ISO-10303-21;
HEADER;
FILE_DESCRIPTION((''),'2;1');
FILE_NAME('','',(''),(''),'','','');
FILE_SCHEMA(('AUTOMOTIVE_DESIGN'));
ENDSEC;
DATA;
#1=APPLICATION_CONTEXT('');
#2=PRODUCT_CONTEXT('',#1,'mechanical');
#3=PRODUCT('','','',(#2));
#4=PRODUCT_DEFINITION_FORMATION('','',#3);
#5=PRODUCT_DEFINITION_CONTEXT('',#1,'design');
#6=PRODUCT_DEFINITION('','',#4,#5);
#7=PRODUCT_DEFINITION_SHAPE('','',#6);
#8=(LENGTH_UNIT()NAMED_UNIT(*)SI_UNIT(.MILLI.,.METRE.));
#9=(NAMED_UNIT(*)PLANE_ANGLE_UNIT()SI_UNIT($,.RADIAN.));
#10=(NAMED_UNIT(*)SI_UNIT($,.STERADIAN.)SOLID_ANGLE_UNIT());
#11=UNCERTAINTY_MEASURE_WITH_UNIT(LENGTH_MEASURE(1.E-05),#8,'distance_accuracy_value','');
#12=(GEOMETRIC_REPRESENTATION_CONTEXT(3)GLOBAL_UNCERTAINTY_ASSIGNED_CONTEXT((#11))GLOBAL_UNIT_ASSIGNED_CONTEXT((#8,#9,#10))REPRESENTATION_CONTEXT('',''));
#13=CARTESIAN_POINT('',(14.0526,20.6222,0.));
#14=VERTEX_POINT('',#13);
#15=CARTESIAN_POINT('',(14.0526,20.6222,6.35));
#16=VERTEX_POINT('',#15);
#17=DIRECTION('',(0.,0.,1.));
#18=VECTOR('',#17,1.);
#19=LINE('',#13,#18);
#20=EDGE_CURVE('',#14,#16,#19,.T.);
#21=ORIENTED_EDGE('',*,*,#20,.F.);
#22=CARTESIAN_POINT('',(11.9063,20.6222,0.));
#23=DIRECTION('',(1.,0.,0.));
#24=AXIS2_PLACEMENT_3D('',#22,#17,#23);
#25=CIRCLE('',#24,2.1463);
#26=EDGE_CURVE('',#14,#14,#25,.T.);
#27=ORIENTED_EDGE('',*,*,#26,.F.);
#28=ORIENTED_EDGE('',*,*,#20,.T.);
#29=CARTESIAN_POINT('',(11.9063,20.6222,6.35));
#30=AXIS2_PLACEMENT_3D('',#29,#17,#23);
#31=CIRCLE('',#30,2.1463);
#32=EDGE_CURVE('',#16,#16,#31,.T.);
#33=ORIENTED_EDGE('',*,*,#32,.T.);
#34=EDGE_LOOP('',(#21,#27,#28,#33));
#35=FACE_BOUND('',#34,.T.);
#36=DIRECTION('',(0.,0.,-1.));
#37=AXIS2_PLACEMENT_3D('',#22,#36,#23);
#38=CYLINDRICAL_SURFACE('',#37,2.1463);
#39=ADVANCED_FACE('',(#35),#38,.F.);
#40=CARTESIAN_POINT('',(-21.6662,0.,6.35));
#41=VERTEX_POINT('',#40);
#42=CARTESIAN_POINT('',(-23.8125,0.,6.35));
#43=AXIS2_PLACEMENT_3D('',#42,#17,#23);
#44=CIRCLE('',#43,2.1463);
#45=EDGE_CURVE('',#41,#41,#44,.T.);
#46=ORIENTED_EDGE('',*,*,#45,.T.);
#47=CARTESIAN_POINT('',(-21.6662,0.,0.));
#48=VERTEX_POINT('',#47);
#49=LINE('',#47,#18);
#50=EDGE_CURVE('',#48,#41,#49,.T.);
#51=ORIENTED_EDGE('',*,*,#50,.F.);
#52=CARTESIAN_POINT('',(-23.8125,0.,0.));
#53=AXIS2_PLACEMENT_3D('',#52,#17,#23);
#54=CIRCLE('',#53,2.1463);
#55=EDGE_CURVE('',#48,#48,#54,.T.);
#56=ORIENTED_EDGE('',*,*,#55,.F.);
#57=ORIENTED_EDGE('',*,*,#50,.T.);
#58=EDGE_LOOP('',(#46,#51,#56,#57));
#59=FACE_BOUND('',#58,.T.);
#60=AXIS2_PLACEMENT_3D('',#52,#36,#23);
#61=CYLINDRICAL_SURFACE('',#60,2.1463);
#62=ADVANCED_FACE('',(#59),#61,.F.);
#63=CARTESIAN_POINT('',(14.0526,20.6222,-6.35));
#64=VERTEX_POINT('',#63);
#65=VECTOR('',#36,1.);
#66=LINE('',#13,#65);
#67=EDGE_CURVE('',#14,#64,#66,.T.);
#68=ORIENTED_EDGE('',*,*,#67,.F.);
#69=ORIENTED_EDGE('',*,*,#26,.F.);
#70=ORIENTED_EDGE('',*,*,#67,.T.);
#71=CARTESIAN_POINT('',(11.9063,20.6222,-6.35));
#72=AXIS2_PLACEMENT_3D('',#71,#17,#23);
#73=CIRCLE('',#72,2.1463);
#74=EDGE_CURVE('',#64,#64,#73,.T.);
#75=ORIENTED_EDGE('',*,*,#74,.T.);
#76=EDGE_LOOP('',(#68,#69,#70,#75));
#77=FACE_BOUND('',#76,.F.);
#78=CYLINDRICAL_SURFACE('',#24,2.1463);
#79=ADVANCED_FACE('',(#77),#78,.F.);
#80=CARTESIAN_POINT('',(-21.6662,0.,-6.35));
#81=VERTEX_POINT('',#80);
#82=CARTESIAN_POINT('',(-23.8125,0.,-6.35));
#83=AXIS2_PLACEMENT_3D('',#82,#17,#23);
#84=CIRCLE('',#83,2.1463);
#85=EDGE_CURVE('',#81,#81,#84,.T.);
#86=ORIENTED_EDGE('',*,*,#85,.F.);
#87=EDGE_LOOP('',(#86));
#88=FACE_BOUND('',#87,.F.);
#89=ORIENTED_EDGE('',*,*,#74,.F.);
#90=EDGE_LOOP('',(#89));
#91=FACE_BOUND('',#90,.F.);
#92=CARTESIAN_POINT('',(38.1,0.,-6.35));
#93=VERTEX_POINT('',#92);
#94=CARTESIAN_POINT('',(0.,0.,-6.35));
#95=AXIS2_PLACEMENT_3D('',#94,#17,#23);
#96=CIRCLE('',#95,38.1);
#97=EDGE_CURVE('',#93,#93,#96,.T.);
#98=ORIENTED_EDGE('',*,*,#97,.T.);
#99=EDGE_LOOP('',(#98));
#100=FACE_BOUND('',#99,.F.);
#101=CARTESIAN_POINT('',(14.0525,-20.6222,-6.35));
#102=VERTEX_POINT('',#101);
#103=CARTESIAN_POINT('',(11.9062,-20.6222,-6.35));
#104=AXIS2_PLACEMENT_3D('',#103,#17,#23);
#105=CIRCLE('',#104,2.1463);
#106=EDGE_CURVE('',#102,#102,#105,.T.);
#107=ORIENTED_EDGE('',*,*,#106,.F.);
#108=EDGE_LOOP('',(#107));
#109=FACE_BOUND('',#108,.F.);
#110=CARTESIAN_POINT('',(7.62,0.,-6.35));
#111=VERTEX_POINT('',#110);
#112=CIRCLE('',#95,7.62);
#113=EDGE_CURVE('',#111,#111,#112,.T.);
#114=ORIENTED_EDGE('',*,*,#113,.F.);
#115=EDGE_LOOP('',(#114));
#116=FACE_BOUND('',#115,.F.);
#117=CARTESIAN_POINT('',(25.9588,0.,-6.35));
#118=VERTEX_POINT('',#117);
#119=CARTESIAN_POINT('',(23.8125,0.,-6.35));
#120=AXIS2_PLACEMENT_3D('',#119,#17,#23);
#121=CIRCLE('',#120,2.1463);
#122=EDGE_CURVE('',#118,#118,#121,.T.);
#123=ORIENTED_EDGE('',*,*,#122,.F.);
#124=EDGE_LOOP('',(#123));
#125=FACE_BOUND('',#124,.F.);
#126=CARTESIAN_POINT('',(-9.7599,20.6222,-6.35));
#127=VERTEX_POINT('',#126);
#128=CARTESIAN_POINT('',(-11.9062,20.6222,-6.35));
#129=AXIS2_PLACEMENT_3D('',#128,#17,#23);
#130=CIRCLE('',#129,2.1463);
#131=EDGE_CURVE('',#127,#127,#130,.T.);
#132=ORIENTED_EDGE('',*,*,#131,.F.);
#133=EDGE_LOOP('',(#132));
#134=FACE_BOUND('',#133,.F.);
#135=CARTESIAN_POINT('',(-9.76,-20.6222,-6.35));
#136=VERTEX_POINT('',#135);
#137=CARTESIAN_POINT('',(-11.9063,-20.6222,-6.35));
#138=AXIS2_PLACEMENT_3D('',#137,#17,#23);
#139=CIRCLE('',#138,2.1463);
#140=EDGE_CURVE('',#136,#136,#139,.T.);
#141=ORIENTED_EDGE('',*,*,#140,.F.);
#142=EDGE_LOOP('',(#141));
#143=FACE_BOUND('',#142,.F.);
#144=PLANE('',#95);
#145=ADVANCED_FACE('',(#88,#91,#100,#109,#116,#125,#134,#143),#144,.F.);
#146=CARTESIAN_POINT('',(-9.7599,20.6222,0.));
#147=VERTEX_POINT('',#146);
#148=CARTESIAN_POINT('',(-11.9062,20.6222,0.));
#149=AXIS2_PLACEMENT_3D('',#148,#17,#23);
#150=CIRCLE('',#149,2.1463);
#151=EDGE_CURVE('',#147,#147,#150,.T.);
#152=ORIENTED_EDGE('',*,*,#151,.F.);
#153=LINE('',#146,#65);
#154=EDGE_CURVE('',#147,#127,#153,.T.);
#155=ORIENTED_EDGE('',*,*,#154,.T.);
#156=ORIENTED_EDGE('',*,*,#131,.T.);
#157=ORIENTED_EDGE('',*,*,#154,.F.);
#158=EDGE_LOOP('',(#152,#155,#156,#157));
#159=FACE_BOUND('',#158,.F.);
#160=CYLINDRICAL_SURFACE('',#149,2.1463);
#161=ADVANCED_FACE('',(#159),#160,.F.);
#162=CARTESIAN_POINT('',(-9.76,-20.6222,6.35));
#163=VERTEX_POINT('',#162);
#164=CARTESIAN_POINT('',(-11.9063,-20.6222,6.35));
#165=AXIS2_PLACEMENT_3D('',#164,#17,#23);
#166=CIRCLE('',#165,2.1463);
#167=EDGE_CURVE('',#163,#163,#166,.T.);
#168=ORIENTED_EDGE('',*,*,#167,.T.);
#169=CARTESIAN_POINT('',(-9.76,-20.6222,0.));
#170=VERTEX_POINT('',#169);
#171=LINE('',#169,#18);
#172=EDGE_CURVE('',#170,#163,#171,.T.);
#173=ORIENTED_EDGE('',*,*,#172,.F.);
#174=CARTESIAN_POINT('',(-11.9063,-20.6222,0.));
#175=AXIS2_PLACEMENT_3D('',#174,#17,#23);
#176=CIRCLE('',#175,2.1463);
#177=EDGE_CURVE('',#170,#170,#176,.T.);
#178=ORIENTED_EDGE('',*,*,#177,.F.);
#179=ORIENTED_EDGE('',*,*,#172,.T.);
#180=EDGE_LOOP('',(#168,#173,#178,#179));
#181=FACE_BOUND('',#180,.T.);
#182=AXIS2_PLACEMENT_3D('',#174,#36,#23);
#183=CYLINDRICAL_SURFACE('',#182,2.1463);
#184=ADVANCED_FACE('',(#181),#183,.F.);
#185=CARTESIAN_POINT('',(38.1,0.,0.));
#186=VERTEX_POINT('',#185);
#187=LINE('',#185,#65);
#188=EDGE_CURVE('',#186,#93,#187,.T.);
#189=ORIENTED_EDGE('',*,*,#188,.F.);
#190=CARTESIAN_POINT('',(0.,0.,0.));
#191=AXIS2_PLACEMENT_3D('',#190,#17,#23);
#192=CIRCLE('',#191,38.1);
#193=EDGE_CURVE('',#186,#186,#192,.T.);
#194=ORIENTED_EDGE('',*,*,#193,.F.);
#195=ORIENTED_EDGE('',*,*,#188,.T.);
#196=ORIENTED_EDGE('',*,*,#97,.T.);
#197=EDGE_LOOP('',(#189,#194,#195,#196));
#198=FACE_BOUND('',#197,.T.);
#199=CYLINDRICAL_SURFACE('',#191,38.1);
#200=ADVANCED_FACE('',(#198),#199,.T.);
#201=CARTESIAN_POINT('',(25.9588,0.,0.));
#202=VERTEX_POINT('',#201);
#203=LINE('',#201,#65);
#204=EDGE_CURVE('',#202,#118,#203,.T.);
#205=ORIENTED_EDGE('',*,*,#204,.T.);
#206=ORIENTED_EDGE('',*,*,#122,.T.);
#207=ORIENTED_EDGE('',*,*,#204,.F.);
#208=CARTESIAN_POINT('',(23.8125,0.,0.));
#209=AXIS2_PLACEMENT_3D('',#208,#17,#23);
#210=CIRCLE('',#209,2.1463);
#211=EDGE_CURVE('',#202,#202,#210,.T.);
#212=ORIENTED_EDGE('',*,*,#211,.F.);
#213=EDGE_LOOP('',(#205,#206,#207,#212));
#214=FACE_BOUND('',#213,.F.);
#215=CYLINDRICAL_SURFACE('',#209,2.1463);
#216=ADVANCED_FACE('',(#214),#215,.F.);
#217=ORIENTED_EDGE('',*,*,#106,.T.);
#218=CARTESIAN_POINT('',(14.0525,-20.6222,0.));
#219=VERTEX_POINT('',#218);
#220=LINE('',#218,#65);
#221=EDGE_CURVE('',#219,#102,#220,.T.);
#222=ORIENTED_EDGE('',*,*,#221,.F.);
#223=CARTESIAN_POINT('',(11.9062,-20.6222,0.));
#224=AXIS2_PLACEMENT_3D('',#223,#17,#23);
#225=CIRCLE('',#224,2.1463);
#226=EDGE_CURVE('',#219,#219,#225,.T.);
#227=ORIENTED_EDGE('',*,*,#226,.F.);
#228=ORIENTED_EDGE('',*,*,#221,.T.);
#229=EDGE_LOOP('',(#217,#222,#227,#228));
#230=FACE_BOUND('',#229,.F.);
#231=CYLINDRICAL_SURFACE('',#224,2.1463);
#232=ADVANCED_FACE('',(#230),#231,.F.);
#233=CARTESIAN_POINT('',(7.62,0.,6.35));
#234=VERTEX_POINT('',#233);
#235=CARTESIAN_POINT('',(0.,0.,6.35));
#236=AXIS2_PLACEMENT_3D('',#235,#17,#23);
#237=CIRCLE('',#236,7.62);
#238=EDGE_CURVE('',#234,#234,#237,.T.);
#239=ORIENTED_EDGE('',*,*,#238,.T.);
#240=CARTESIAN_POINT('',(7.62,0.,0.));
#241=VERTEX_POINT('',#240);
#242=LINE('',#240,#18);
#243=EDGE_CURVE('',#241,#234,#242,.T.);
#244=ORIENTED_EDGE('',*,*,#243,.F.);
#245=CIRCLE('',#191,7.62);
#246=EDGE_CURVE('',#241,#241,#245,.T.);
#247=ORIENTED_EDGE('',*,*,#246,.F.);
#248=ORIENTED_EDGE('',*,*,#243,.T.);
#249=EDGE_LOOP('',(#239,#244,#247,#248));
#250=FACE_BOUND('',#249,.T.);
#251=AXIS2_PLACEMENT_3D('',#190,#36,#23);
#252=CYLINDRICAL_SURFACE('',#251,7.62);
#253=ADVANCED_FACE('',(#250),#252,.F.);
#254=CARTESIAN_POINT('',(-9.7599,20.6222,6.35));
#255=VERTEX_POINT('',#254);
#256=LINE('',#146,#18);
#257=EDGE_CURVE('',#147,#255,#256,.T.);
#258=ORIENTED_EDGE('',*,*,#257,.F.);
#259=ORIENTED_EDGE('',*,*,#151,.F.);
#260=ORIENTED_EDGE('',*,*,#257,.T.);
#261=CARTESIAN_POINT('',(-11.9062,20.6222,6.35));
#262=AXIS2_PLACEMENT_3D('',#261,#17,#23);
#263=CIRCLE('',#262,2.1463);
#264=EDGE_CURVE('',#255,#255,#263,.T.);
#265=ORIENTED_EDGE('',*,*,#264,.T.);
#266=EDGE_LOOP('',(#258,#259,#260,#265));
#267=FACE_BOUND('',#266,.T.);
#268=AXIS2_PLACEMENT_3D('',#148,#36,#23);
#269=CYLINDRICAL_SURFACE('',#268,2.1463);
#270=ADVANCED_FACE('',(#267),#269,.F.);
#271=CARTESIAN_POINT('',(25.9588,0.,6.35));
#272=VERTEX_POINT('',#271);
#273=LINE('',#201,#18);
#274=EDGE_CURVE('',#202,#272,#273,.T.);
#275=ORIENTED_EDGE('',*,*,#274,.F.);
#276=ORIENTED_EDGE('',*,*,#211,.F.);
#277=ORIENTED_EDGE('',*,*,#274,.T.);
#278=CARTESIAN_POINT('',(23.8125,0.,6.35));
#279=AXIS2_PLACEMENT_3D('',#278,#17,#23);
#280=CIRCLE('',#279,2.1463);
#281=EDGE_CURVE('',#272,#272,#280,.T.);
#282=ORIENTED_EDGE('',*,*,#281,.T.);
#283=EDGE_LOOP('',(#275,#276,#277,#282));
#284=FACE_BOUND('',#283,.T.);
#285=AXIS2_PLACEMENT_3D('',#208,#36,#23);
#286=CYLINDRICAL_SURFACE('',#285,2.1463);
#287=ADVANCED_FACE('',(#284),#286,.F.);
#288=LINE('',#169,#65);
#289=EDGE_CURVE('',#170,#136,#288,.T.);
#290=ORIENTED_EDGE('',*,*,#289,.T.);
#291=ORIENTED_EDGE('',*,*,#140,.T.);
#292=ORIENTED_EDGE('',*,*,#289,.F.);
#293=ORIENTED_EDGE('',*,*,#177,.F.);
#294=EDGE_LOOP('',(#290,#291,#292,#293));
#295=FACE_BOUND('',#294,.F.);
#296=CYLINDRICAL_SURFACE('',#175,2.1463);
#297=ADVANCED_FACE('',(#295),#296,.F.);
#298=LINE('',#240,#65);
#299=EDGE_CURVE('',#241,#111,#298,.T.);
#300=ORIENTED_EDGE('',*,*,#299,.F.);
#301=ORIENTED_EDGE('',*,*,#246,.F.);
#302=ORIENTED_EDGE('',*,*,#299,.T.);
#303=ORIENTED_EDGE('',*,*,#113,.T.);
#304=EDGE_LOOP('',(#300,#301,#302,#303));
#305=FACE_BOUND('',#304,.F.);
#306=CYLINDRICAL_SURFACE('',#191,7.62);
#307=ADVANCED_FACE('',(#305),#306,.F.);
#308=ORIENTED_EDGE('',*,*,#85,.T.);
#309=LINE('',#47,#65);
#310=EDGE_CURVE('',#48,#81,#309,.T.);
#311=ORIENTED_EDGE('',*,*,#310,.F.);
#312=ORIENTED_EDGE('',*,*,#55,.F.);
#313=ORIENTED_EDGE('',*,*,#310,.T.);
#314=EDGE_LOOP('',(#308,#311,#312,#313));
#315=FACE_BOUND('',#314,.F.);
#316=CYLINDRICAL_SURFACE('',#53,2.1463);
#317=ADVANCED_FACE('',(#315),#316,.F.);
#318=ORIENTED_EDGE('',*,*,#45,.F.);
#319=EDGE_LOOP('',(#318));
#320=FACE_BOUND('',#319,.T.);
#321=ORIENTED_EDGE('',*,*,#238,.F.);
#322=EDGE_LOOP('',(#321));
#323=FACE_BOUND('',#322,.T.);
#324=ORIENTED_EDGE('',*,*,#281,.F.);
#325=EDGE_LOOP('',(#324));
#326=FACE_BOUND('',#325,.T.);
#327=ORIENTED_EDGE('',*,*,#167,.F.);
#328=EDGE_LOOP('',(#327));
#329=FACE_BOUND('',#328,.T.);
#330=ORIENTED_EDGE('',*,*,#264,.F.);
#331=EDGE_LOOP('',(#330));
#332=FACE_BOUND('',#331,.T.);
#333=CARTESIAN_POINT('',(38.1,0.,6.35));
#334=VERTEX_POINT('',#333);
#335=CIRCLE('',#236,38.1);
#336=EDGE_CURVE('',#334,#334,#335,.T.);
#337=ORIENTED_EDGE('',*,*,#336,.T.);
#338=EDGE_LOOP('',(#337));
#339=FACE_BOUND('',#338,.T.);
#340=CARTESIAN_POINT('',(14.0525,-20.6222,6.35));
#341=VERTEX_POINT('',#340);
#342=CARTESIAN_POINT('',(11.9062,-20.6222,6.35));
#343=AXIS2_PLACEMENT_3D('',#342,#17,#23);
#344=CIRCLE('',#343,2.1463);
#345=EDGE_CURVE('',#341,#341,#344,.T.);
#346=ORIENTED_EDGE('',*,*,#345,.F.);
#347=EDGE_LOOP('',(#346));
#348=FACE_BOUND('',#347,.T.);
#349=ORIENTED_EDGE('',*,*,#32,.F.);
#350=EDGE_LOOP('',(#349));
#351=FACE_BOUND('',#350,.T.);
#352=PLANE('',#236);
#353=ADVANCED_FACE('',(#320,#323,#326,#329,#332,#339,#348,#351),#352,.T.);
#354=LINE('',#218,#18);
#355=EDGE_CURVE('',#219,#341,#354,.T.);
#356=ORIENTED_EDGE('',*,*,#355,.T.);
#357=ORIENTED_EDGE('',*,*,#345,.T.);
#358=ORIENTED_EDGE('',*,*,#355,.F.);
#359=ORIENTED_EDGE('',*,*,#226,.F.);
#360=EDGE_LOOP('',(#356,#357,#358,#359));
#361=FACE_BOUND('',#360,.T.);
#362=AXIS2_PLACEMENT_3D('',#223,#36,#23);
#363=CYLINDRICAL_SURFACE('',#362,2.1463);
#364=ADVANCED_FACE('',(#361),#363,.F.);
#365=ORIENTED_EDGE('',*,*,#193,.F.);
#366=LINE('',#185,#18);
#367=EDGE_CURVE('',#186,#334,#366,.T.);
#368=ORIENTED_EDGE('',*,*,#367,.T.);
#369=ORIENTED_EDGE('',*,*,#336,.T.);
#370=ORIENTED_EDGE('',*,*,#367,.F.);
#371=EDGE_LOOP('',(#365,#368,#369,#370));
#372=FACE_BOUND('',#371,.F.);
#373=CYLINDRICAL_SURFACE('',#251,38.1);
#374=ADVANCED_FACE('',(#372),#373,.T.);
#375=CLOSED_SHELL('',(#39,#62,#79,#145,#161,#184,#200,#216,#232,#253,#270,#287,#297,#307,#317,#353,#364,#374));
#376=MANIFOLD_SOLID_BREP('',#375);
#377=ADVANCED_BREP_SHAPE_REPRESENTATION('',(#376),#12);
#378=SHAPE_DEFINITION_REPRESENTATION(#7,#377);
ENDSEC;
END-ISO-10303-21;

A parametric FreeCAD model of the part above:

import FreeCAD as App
import Part
import Sketcher
Q = App.Units.Quantity

doc = App.newDocument("Part")
body = doc.addObject("PartDesign::Body", "Body")

# Sketch on XY plane
sketch1 = doc.addObject("Sketcher::SketchObject", "Sketch")
body.addObject(sketch1)
sketch1.AttachmentSupport = (doc.XY_Plane, [""])
sketch1.MapMode = "FlatFace"
sketch1.addGeometry([
    Part.Circle(App.Vector(0, 0, 0), App.Vector(0, 0, 1), 38.1),  # 0
    Part.Circle(App.Vector(-11.9, -20.6, 0), App.Vector(0, 0, 1), 2.1),  # 1
    Part.Circle(App.Vector(11.9, -20.6, 0), App.Vector(0, 0, 1), 2.1),  # 2
    Part.Circle(App.Vector(-23.8, 0, 0), App.Vector(0, 0, 1), 2.1),  # 3
    Part.Circle(App.Vector(-11.9, 20.6, 0), App.Vector(0, 0, 1), 2.1),  # 4
    Part.Circle(App.Vector(0, 0, 0), App.Vector(0, 0, 1), 7.6),  # 5
    Part.Circle(App.Vector(23.8, 0, 0), App.Vector(0, 0, 1), 2.1),  # 6
    Part.Circle(App.Vector(11.9, 20.6, 0), App.Vector(0, 0, 1), 2.1),  # 7
], False)
sketch1.addConstraint([
    Sketcher.Constraint("Coincident", 0, 3, -1, 1),
    Sketcher.Constraint("Coincident", 5, 3, -1, 1),
    Sketcher.Constraint("Equal", 1, 2),
    Sketcher.Constraint("Equal", 2, 3),
    Sketcher.Constraint("Equal", 3, 4),
    Sketcher.Constraint("Equal", 4, 6),
    Sketcher.Constraint("Equal", 6, 7),
    Sketcher.Constraint("Symmetric", 2, 3, 4, 3, -1, 1),
    Sketcher.Constraint("Symmetric", 3, 3, 6, 3, -1, 1),
    Sketcher.Constraint("Symmetric", 1, 3, 7, 3, -1, 1),
    Sketcher.Constraint("Symmetric", 1, 3, 2, 3, -2),
    Sketcher.Constraint("PointOnObject", 3, 3, -1),
    Sketcher.Constraint("Diameter", 0, Q("3 in")),
    Sketcher.Constraint("Diameter", 5, Q("0.6 in")),
    Sketcher.Constraint("Diameter", 1, Q("0.169 in")),
    Sketcher.Constraint("DistanceX", 1, 3, -1, 1, Q("0.468752 in")),
    Sketcher.Constraint("DistanceX", 3, 3, -1, 1, Q("0.9375 in")),
    Sketcher.Constraint("DistanceY", 1, 3, -1, 1, Q("0.8119 in")),
])
pad1 = doc.addObject("PartDesign::Pad", "Pad")
body.addObject(pad1)
pad1.Profile = sketch1
pad1.Length = Q("0.5 in")
pad1.Midplane = True

doc.recompute()
